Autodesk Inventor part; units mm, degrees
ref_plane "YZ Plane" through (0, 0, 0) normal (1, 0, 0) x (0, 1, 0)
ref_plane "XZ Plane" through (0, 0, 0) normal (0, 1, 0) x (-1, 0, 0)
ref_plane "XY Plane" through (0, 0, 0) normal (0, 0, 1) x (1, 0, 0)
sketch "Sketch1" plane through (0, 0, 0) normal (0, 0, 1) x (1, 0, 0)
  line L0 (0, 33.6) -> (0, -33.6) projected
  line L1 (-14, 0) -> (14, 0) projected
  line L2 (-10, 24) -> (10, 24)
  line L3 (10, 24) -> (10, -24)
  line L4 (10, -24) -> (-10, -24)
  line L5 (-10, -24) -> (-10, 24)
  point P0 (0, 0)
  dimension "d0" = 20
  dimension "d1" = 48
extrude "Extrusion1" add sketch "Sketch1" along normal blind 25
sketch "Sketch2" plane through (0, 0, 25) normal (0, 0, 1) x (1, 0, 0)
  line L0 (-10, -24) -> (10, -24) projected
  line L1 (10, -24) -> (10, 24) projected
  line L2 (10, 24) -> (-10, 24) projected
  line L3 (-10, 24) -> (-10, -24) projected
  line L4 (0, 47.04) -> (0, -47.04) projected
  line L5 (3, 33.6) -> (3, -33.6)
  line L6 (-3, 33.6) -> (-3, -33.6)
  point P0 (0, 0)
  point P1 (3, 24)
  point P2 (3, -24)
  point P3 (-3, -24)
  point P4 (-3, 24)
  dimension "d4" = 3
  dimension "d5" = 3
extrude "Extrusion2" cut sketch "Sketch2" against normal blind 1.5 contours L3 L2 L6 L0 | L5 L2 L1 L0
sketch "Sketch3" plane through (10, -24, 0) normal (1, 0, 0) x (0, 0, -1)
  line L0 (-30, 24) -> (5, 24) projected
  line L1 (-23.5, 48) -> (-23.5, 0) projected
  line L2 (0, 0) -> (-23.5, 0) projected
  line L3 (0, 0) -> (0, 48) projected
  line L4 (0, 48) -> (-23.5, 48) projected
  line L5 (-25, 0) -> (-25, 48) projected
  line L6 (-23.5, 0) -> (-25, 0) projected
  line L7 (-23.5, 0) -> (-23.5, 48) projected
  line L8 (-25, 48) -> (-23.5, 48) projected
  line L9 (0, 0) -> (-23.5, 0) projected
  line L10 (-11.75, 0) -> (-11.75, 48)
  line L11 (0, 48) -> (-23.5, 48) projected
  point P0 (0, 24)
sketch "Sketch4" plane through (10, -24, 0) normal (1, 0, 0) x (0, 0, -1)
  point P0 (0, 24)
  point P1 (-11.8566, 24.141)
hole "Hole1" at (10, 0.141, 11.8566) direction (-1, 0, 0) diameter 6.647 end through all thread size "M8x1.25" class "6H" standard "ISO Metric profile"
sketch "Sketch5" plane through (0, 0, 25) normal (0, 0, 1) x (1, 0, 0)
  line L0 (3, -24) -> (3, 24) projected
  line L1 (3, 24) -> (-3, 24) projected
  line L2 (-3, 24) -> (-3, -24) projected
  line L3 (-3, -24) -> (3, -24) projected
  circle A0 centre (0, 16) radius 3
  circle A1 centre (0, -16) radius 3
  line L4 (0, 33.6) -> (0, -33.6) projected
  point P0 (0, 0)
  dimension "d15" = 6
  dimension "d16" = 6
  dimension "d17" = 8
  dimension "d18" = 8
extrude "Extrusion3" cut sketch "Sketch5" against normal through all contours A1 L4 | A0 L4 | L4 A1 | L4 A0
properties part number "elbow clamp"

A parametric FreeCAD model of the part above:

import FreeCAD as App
import Part
import Sketcher
from FreeCAD import Vector

doc = App.newDocument("Part")
params = doc.addObject("Spreadsheet::Sheet", "Params")
for row, (alias, value) in enumerate([
    ("sketch1_width", "20 mm"),
    ("sketch1_height", "48 mm"),
    ("pad1_length", "25 mm"),
    ("sketch2_width", "7 mm"),
    ("sketch2_height", "48 mm"),
    ("pocket1_length", "1.5 mm"),
    ("hole_diameter", "6.647 mm"),
    ("sketch4_diameter", "6 mm"),
], start=1):
    params.set(f"A{row}", alias)
    params.set(f"B{row}", "=" + value)
    params.setAlias(f"B{row}", alias)

body = doc.addObject("PartDesign::Body", "Body")

sketch1 = body.newObject("Sketcher::SketchObject", "Sketch")
sketch1.AttachmentSupport = (doc.getObject("XY_Plane"), [""])
sketch1.MapMode = "FlatFace"
sketch1.addGeometry([
    Part.LineSegment(Vector(10, 24, 0), Vector(-10, 24, 0)),
    Part.LineSegment(Vector(-10, 24, 0), Vector(-10, -24, 0)),
    Part.LineSegment(Vector(-10, -24, 0), Vector(10, -24, 0)),
    Part.LineSegment(Vector(10, -24, 0), Vector(10, 24, 0)),
], False)
sketch1.addConstraint([
    Sketcher.Constraint("Coincident", 0, 2, 1, 1),
    Sketcher.Constraint("Coincident", 1, 2, 2, 1),
    Sketcher.Constraint("Coincident", 2, 2, 3, 1),
    Sketcher.Constraint("Coincident", 3, 2, 0, 1),
    Sketcher.Constraint("Horizontal", 0),
    Sketcher.Constraint("Vertical", 1),
    Sketcher.Constraint("Horizontal", 2),
    Sketcher.Constraint("Vertical", 3),
    Sketcher.Constraint("Symmetric", 0, 2, 2, 2, -1, 1),
    Sketcher.Constraint("DistanceX", 0, 2, 0, 1, 20.0),
    Sketcher.Constraint("DistanceY", 1, 2, 1, 1, 48.0),
])
sketch1.setExpression("Constraints[9]", "Params.sketch1_width")
sketch1.setExpression("Constraints[10]", "Params.sketch1_height")
pad1 = body.newObject("PartDesign::Pad", "Pad")
pad1.Profile = sketch1
pad1.setExpression("Length", "Params.pad1_length")

sketch2 = body.newObject("Sketcher::SketchObject", "Sketch001")
sketch2.AttachmentSupport = (doc.getObject("XY_Plane"), [""])
sketch2.MapMode = "FlatFace"
sketch2.AttachmentOffset = App.Placement(Vector(0, 0, 25), App.Rotation())
sketch2.addGeometry([
    Part.LineSegment(Vector(-10, 24, 0), Vector(-10, -24, 0)),
    Part.LineSegment(Vector(-10, -24, 0), Vector(-3, -24, 0)),
    Part.LineSegment(Vector(-3, -24, 0), Vector(-3, 24, 0)),
    Part.LineSegment(Vector(-3, 24, 0), Vector(-10, 24, 0)),
    Part.LineSegment(Vector(3, 24, 0), Vector(3, -24, 0)),
    Part.LineSegment(Vector(3, -24, 0), Vector(10, -24, 0)),
    Part.LineSegment(Vector(10, -24, 0), Vector(10, 24, 0)),
    Part.LineSegment(Vector(10, 24, 0), Vector(3, 24, 0)),
], False)
sketch2.addConstraint([
    Sketcher.Constraint("Coincident", 0, 2, 1, 1),
    Sketcher.Constraint("Coincident", 1, 2, 2, 1),
    Sketcher.Constraint("Coincident", 2, 2, 3, 1),
    Sketcher.Constraint("Coincident", 3, 2, 0, 1),
    Sketcher.Constraint("Coincident", 4, 2, 5, 1),
    Sketcher.Constraint("Coincident", 5, 2, 6, 1),
    Sketcher.Constraint("Coincident", 6, 2, 7, 1),
    Sketcher.Constraint("Coincident", 7, 2, 4, 1),
    Sketcher.Constraint("Vertical", 0),
    Sketcher.Constraint("Horizontal", 1),
    Sketcher.Constraint("Vertical", 2),
    Sketcher.Constraint("Horizontal", 3),
    Sketcher.Constraint("Vertical", 4),
    Sketcher.Constraint("Horizontal", 5),
    Sketcher.Constraint("Vertical", 6),
    Sketcher.Constraint("Horizontal", 7),
    Sketcher.Constraint("Symmetric", 2, 2, 4, 2, -1, 1),
    Sketcher.Constraint("Symmetric", 0, 2, 6, 2, -1, 1),
    Sketcher.Constraint("Horizontal", 1, 2, 4, 2),
    Sketcher.Constraint("DistanceX", 1, 2, -1, 1, 3.0),
    Sketcher.Constraint("DistanceX", 1, 1, 1, 2, 7.0),
    Sketcher.Constraint("DistanceY", 0, 2, 0, 1, 48.0),
])
sketch2.setExpression("Constraints[20]", "Params.sketch2_width")
sketch2.setExpression("Constraints[21]", "Params.sketch2_height")
pocket1 = body.newObject("PartDesign::Pocket", "Pocket")
pocket1.Profile = sketch2
pocket1.setExpression("Length", "Params.pocket1_length")

sketch3 = body.newObject("Sketcher::SketchObject", "Sketch002")
sketch3.AttachmentSupport = (doc.getObject("YZ_Plane"), [""])
sketch3.MapMode = "FlatFace"
sketch3.AttachmentOffset = App.Placement(Vector(0, 0, 10), App.Rotation())
sketch3.addGeometry(Part.Circle(Vector(0.1, 11.9, 0), Vector(0, 0, 1), 3.3), False)
sketch3.addConstraint([
    Sketcher.Constraint("Diameter", 0, 6.647),
    Sketcher.Constraint("DistanceX", -1, 1, 0, 3, 0.141),
    Sketcher.Constraint("DistanceY", -1, 1, 0, 3, 11.8566),
])
doc.recompute()
hole = body.newObject("PartDesign::Hole", "Hole")
hole.Profile = sketch3
hole.ThreadType = "None"
hole.setExpression("Diameter", "Params.hole_diameter")
hole.DepthType = "ThroughAll"

sketch4 = body.newObject("Sketcher::SketchObject", "Sketch003")
sketch4.AttachmentSupport = (doc.getObject("XY_Plane"), [""])
sketch4.MapMode = "FlatFace"
sketch4.AttachmentOffset = App.Placement(Vector(0, 0, 25), App.Rotation())
sketch4.addGeometry([
    Part.Circle(Vector(0, -16, 0), Vector(0, 0, 1), 3),
    Part.Circle(Vector(0, 16, 0), Vector(0, 0, 1), 3),
], False)
sketch4.addConstraint([
    Sketcher.Constraint("Equal", 0, 1),
    Sketcher.Constraint("Symmetric", 0, 3, 1, 3, -1, 1),
    Sketcher.Constraint("PointOnObject", 0, 3, -2),
    Sketcher.Constraint("Diameter", 0, 6.0),
    Sketcher.Constraint("DistanceY", 0, 3, -1, 1, 16.0),
])
sketch4.setExpression("Constraints[3]", "Params.sketch4_diameter")
pocket2 = body.newObject("PartDesign::Pocket", "Pocket001")
pocket2.Profile = sketch4
pocket2.Type = "ThroughAll"

doc.recompute()
